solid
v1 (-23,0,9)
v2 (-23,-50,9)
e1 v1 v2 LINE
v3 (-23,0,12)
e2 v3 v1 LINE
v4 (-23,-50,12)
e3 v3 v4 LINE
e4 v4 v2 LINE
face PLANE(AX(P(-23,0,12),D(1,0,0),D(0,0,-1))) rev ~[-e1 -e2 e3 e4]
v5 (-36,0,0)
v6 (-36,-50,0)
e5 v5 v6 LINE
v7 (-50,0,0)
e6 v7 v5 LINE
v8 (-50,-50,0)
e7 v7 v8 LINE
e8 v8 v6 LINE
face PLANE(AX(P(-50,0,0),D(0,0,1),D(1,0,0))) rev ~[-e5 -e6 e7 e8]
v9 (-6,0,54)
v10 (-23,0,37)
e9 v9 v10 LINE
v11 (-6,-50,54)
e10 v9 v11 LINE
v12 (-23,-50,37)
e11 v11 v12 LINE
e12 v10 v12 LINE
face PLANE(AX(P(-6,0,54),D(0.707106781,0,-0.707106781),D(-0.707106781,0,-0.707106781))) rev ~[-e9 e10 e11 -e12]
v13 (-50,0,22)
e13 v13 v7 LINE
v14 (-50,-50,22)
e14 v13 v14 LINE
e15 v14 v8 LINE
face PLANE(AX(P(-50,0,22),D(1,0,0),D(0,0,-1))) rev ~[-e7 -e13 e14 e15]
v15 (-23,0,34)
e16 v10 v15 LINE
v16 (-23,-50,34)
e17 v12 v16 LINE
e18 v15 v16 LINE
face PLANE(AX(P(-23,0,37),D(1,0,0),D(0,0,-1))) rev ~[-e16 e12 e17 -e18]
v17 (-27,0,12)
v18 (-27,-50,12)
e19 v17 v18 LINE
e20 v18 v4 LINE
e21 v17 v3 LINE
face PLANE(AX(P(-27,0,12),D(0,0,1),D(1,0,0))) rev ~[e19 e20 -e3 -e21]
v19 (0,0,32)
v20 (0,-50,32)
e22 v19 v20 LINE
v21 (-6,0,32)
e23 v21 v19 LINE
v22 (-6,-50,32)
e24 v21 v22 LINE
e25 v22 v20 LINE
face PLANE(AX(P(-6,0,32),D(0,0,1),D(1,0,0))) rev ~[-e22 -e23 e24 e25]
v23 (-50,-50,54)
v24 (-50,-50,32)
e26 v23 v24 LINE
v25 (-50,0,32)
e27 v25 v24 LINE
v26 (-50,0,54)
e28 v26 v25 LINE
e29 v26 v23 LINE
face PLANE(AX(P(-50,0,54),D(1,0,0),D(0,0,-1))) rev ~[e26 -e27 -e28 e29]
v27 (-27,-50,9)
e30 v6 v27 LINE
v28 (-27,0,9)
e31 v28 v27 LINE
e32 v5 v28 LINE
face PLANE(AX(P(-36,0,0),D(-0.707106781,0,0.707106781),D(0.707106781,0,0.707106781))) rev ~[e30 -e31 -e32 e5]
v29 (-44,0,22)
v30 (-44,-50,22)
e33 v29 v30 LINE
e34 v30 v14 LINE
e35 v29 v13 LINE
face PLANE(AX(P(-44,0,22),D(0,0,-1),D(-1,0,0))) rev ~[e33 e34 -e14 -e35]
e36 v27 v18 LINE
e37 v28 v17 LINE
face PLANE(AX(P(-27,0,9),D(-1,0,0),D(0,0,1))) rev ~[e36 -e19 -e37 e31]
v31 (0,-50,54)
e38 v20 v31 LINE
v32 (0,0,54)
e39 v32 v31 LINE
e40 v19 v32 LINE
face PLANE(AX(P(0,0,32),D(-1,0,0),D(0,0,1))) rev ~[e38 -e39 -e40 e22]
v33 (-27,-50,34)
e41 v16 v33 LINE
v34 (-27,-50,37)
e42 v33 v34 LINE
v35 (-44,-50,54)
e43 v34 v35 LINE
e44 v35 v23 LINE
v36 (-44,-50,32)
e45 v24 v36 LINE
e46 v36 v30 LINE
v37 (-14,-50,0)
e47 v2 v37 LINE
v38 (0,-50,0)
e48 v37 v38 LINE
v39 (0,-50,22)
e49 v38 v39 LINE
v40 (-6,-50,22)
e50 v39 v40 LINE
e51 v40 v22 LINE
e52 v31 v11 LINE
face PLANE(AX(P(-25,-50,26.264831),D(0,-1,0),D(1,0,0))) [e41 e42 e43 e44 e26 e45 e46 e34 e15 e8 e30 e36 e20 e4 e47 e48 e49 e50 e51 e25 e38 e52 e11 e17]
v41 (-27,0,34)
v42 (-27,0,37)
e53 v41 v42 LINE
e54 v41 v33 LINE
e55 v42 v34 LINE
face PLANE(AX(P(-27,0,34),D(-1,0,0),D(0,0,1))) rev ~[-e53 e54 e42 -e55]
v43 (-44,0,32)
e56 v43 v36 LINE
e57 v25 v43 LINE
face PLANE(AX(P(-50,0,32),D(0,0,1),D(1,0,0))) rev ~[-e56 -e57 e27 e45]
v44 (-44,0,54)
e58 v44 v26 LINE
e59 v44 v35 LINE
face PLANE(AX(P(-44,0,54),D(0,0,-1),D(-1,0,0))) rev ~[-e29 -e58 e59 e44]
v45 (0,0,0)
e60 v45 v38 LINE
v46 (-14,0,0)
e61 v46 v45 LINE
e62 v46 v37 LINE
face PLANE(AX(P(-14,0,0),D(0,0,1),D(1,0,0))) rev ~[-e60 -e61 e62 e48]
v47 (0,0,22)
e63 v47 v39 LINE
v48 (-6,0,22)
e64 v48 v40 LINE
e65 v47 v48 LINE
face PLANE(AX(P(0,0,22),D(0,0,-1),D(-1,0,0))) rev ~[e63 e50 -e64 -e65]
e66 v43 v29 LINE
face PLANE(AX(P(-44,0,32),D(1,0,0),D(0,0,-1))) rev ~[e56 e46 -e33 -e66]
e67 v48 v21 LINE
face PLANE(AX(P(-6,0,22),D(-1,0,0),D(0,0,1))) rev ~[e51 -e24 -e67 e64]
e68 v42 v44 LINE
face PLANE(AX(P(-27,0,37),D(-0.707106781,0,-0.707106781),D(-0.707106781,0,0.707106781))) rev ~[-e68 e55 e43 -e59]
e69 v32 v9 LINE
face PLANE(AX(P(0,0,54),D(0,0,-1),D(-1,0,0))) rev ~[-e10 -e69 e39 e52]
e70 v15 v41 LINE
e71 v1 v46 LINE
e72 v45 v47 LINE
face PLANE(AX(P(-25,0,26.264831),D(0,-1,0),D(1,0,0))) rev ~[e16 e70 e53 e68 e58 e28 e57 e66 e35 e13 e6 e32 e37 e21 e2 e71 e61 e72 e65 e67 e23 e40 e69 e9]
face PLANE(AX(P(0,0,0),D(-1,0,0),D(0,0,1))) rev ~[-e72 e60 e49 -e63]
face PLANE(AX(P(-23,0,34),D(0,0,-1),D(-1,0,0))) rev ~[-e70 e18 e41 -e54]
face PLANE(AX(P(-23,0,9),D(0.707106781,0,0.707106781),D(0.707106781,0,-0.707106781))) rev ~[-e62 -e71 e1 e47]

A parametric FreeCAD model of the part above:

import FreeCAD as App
import Part
import Sketcher

V = App.Vector
Q = App.Units.Quantity

doc = App.newDocument("Part")
body = doc.addObject("PartDesign::Body", "Body")

# Sketch on XZ plane
sketch1 = body.newObject("Sketcher::SketchObject", "Sketch")
sketch1.AttachmentSupport = (doc.getObject("XZ_Plane"), [""])
sketch1.MapMode = "FlatFace"
sketch1.addGeometry(Part.LineSegment(V(0, 54, 0), V(-6, 54, 0)), False)
sketch1.addGeometry(Part.LineSegment(V(-6, 54, 0), V(-23, 37, 0)), False)
sketch1.addGeometry(Part.LineSegment(V(-23, 37, 0), V(-23, 34, 0)), False)
sketch1.addGeometry(Part.LineSegment(V(-23, 34, 0), V(-27, 34, 0)), False)
sketch1.addGeometry(Part.LineSegment(V(-27, 34, 0), V(-27, 37, 0)), False)
sketch1.addGeometry(Part.LineSegment(V(-27, 37, 0), V(-44, 54, 0)), False)
sketch1.addGeometry(Part.LineSegment(V(-44, 54, 0), V(-50, 54, 0)), False)
sketch1.addGeometry(Part.LineSegment(V(-50, 54, 0), V(-50, 32, 0)), False)
sketch1.addGeometry(Part.LineSegment(V(-50, 32, 0), V(-44, 32, 0)), False)
sketch1.addGeometry(Part.LineSegment(V(-44, 32, 0), V(-44, 22, 0)), False)
sketch1.addGeometry(Part.LineSegment(V(-44, 22, 0), V(-50, 22, 0)), False)
sketch1.addGeometry(Part.LineSegment(V(-50, 22, 0), V(-50, 0, 0)), False)
sketch1.addGeometry(Part.LineSegment(V(-50, 0, 0), V(-36, 0, 0)), False)
sketch1.addGeometry(Part.LineSegment(V(-36, 0, 0), V(-27, 9, 0)), False)
sketch1.addGeometry(Part.LineSegment(V(-27, 9, 0), V(-27, 12, 0)), False)
sketch1.addGeometry(Part.LineSegment(V(-27, 12, 0), V(-23, 12, 0)), False)
sketch1.addGeometry(Part.LineSegment(V(-23, 12, 0), V(-23, 9, 0)), False)
sketch1.addGeometry(Part.LineSegment(V(-23, 9, 0), V(-14, 0, 0)), False)
sketch1.addGeometry(Part.LineSegment(V(-14, 0, 0), V(0, 0, 0)), False)
sketch1.addGeometry(Part.LineSegment(V(0, 0, 0), V(0, 22, 0)), False)
sketch1.addGeometry(Part.LineSegment(V(0, 22, 0), V(-6, 22, 0)), False)
sketch1.addGeometry(Part.LineSegment(V(-6, 22, 0), V(-6, 32, 0)), False)
sketch1.addGeometry(Part.LineSegment(V(-6, 32, 0), V(0, 32, 0)), False)
sketch1.addGeometry(Part.LineSegment(V(0, 32, 0), V(0, 54, 0)), False)
sketch1.addConstraint(Sketcher.Constraint("Coincident", 0, 2, 1, 1))
sketch1.addConstraint(Sketcher.Constraint("Coincident", 1, 2, 2, 1))
sketch1.addConstraint(Sketcher.Constraint("Coincident", 2, 2, 3, 1))
sketch1.addConstraint(Sketcher.Constraint("Coincident", 3, 2, 4, 1))
sketch1.addConstraint(Sketcher.Constraint("Coincident", 4, 2, 5, 1))
sketch1.addConstraint(Sketcher.Constraint("Coincident", 5, 2, 6, 1))
sketch1.addConstraint(Sketcher.Constraint("Coincident", 6, 2, 7, 1))
sketch1.addConstraint(Sketcher.Constraint("Coincident", 7, 2, 8, 1))
sketch1.addConstraint(Sketcher.Constraint("Coincident", 8, 2, 9, 1))
sketch1.addConstraint(Sketcher.Constraint("Coincident", 9, 2, 10, 1))
sketch1.addConstraint(Sketcher.Constraint("Coincident", 10, 2, 11, 1))
sketch1.addConstraint(Sketcher.Constraint("Coincident", 11, 2, 12, 1))
sketch1.addConstraint(Sketcher.Constraint("Coincident", 12, 2, 13, 1))
sketch1.addConstraint(Sketcher.Constraint("Coincident", 13, 2, 14, 1))
sketch1.addConstraint(Sketcher.Constraint("Coincident", 14, 2, 15, 1))
sketch1.addConstraint(Sketcher.Constraint("Coincident", 15, 2, 16, 1))
sketch1.addConstraint(Sketcher.Constraint("Coincident", 16, 2, 17, 1))
sketch1.addConstraint(Sketcher.Constraint("Coincident", 17, 2, 18, 1))
sketch1.addConstraint(Sketcher.Constraint("Coincident", 18, 2, 19, 1))
sketch1.addConstraint(Sketcher.Constraint("Coincident", 19, 2, 20, 1))
sketch1.addConstraint(Sketcher.Constraint("Coincident", 20, 2, 21, 1))
sketch1.addConstraint(Sketcher.Constraint("Coincident", 21, 2, 22, 1))
sketch1.addConstraint(Sketcher.Constraint("Coincident", 22, 2, 23, 1))
sketch1.addConstraint(Sketcher.Constraint("Coincident", 23, 2, 0, 1))
sketch1.addConstraint(Sketcher.Constraint("Horizontal", 0))
sketch1.addConstraint(Sketcher.Constraint("Vertical", 2))
sketch1.addConstraint(Sketcher.Constraint("Horizontal", 3))
sketch1.addConstraint(Sketcher.Constraint("Vertical", 4))
sketch1.addConstraint(Sketcher.Constraint("Horizontal", 6))
sketch1.addConstraint(Sketcher.Constraint("Vertical", 7))
sketch1.addConstraint(Sketcher.Constraint("Horizontal", 8))
sketch1.addConstraint(Sketcher.Constraint("Vertical", 9))
sketch1.addConstraint(Sketcher.Constraint("Horizontal", 10))
sketch1.addConstraint(Sketcher.Constraint("Vertical", 11))
sketch1.addConstraint(Sketcher.Constraint("Horizontal", 12))
sketch1.addConstraint(Sketcher.Constraint("Vertical", 14))
sketch1.addConstraint(Sketcher.Constraint("Horizontal", 15))
sketch1.addConstraint(Sketcher.Constraint("Vertical", 16))
sketch1.addConstraint(Sketcher.Constraint("Horizontal", 18))
sketch1.addConstraint(Sketcher.Constraint("Vertical", 19))
sketch1.addConstraint(Sketcher.Constraint("Horizontal", 20))
sketch1.addConstraint(Sketcher.Constraint("Vertical", 21))
sketch1.addConstraint(Sketcher.Constraint("Horizontal", 22))
sketch1.addConstraint(Sketcher.Constraint("Vertical", 23))
sketch1.addConstraint(Sketcher.Constraint("Coincident", 18, 2, -1, 1))
sketch1.addConstraint(Sketcher.Constraint("PointOnObject", 11, 2, -1))
sketch1.addConstraint(Sketcher.Constraint("PointOnObject", 22, 2, -2))
sketch1.addConstraint(Sketcher.Constraint("Perpendicular", 1, 5))
sketch1.addConstraint(Sketcher.Constraint("Perpendicular", 5, 13))
sketch1.addConstraint(Sketcher.Constraint("Perpendicular", 13, 17))
sketch1.addConstraint(Sketcher.Constraint("Horizontal", 1, 2, 4, 2))
sketch1.addConstraint(Sketcher.Constraint("Horizontal", 0, 2, 5, 2))
sketch1.addConstraint(Sketcher.Constraint("Horizontal", 13, 2, 16, 2))
sketch1.addConstraint(Sketcher.Constraint("Horizontal", 10, 2, 19, 2))
sketch1.addConstraint(Sketcher.Constraint("Horizontal", 8, 2, 21, 2))
sketch1.addConstraint(Sketcher.Constraint("Vertical", 5, 2, 8, 2))
sketch1.addConstraint(Sketcher.Constraint("Vertical", 7, 2, 10, 2))
sketch1.addConstraint(Sketcher.Constraint("Vertical", 4, 2, 13, 2))
sketch1.addConstraint(Sketcher.Constraint("Vertical", 2, 2, 15, 2))
sketch1.addConstraint(Sketcher.Constraint("Vertical", 0, 2, 20, 2))
sketch1.addConstraint(Sketcher.Constraint("Equal", 0, 6))
sketch1.addConstraint(Sketcher.Constraint("Equal", 12, 18))
sketch1.addConstraint(Sketcher.Constraint("Equal", 7, 11))
sketch1.addConstraint(Sketcher.Constraint("Equal", 4, 14))
sketch1.addConstraint(Sketcher.Constraint("DistanceX", 0, 2, 0, 1, Q("6 mm")))
sketch1.addConstraint(Sketcher.Constraint("DistanceX", 3, 2, 3, 1, Q("4 mm")))
sketch1.addConstraint(Sketcher.Constraint("DistanceX", 12, 1, 12, 2, Q("14 mm")))
sketch1.addConstraint(Sketcher.Constraint("DistanceY", 2, 2, 2, 1, Q("3 mm")))
sketch1.addConstraint(Sketcher.Constraint("DistanceY", 7, 2, 7, 1, Q("22 mm")))
sketch1.addConstraint(Sketcher.Constraint("DistanceY", 9, 2, 9, 1, Q("10 mm")))
sketch1.addConstraint(Sketcher.Constraint("DistanceX", 1, 2, -1, 1, Q("23 mm")))
pad1 = body.newObject("PartDesign::Pad", "Pad")
pad1.Profile = sketch1
pad1.Length = 50

doc.recompute()
